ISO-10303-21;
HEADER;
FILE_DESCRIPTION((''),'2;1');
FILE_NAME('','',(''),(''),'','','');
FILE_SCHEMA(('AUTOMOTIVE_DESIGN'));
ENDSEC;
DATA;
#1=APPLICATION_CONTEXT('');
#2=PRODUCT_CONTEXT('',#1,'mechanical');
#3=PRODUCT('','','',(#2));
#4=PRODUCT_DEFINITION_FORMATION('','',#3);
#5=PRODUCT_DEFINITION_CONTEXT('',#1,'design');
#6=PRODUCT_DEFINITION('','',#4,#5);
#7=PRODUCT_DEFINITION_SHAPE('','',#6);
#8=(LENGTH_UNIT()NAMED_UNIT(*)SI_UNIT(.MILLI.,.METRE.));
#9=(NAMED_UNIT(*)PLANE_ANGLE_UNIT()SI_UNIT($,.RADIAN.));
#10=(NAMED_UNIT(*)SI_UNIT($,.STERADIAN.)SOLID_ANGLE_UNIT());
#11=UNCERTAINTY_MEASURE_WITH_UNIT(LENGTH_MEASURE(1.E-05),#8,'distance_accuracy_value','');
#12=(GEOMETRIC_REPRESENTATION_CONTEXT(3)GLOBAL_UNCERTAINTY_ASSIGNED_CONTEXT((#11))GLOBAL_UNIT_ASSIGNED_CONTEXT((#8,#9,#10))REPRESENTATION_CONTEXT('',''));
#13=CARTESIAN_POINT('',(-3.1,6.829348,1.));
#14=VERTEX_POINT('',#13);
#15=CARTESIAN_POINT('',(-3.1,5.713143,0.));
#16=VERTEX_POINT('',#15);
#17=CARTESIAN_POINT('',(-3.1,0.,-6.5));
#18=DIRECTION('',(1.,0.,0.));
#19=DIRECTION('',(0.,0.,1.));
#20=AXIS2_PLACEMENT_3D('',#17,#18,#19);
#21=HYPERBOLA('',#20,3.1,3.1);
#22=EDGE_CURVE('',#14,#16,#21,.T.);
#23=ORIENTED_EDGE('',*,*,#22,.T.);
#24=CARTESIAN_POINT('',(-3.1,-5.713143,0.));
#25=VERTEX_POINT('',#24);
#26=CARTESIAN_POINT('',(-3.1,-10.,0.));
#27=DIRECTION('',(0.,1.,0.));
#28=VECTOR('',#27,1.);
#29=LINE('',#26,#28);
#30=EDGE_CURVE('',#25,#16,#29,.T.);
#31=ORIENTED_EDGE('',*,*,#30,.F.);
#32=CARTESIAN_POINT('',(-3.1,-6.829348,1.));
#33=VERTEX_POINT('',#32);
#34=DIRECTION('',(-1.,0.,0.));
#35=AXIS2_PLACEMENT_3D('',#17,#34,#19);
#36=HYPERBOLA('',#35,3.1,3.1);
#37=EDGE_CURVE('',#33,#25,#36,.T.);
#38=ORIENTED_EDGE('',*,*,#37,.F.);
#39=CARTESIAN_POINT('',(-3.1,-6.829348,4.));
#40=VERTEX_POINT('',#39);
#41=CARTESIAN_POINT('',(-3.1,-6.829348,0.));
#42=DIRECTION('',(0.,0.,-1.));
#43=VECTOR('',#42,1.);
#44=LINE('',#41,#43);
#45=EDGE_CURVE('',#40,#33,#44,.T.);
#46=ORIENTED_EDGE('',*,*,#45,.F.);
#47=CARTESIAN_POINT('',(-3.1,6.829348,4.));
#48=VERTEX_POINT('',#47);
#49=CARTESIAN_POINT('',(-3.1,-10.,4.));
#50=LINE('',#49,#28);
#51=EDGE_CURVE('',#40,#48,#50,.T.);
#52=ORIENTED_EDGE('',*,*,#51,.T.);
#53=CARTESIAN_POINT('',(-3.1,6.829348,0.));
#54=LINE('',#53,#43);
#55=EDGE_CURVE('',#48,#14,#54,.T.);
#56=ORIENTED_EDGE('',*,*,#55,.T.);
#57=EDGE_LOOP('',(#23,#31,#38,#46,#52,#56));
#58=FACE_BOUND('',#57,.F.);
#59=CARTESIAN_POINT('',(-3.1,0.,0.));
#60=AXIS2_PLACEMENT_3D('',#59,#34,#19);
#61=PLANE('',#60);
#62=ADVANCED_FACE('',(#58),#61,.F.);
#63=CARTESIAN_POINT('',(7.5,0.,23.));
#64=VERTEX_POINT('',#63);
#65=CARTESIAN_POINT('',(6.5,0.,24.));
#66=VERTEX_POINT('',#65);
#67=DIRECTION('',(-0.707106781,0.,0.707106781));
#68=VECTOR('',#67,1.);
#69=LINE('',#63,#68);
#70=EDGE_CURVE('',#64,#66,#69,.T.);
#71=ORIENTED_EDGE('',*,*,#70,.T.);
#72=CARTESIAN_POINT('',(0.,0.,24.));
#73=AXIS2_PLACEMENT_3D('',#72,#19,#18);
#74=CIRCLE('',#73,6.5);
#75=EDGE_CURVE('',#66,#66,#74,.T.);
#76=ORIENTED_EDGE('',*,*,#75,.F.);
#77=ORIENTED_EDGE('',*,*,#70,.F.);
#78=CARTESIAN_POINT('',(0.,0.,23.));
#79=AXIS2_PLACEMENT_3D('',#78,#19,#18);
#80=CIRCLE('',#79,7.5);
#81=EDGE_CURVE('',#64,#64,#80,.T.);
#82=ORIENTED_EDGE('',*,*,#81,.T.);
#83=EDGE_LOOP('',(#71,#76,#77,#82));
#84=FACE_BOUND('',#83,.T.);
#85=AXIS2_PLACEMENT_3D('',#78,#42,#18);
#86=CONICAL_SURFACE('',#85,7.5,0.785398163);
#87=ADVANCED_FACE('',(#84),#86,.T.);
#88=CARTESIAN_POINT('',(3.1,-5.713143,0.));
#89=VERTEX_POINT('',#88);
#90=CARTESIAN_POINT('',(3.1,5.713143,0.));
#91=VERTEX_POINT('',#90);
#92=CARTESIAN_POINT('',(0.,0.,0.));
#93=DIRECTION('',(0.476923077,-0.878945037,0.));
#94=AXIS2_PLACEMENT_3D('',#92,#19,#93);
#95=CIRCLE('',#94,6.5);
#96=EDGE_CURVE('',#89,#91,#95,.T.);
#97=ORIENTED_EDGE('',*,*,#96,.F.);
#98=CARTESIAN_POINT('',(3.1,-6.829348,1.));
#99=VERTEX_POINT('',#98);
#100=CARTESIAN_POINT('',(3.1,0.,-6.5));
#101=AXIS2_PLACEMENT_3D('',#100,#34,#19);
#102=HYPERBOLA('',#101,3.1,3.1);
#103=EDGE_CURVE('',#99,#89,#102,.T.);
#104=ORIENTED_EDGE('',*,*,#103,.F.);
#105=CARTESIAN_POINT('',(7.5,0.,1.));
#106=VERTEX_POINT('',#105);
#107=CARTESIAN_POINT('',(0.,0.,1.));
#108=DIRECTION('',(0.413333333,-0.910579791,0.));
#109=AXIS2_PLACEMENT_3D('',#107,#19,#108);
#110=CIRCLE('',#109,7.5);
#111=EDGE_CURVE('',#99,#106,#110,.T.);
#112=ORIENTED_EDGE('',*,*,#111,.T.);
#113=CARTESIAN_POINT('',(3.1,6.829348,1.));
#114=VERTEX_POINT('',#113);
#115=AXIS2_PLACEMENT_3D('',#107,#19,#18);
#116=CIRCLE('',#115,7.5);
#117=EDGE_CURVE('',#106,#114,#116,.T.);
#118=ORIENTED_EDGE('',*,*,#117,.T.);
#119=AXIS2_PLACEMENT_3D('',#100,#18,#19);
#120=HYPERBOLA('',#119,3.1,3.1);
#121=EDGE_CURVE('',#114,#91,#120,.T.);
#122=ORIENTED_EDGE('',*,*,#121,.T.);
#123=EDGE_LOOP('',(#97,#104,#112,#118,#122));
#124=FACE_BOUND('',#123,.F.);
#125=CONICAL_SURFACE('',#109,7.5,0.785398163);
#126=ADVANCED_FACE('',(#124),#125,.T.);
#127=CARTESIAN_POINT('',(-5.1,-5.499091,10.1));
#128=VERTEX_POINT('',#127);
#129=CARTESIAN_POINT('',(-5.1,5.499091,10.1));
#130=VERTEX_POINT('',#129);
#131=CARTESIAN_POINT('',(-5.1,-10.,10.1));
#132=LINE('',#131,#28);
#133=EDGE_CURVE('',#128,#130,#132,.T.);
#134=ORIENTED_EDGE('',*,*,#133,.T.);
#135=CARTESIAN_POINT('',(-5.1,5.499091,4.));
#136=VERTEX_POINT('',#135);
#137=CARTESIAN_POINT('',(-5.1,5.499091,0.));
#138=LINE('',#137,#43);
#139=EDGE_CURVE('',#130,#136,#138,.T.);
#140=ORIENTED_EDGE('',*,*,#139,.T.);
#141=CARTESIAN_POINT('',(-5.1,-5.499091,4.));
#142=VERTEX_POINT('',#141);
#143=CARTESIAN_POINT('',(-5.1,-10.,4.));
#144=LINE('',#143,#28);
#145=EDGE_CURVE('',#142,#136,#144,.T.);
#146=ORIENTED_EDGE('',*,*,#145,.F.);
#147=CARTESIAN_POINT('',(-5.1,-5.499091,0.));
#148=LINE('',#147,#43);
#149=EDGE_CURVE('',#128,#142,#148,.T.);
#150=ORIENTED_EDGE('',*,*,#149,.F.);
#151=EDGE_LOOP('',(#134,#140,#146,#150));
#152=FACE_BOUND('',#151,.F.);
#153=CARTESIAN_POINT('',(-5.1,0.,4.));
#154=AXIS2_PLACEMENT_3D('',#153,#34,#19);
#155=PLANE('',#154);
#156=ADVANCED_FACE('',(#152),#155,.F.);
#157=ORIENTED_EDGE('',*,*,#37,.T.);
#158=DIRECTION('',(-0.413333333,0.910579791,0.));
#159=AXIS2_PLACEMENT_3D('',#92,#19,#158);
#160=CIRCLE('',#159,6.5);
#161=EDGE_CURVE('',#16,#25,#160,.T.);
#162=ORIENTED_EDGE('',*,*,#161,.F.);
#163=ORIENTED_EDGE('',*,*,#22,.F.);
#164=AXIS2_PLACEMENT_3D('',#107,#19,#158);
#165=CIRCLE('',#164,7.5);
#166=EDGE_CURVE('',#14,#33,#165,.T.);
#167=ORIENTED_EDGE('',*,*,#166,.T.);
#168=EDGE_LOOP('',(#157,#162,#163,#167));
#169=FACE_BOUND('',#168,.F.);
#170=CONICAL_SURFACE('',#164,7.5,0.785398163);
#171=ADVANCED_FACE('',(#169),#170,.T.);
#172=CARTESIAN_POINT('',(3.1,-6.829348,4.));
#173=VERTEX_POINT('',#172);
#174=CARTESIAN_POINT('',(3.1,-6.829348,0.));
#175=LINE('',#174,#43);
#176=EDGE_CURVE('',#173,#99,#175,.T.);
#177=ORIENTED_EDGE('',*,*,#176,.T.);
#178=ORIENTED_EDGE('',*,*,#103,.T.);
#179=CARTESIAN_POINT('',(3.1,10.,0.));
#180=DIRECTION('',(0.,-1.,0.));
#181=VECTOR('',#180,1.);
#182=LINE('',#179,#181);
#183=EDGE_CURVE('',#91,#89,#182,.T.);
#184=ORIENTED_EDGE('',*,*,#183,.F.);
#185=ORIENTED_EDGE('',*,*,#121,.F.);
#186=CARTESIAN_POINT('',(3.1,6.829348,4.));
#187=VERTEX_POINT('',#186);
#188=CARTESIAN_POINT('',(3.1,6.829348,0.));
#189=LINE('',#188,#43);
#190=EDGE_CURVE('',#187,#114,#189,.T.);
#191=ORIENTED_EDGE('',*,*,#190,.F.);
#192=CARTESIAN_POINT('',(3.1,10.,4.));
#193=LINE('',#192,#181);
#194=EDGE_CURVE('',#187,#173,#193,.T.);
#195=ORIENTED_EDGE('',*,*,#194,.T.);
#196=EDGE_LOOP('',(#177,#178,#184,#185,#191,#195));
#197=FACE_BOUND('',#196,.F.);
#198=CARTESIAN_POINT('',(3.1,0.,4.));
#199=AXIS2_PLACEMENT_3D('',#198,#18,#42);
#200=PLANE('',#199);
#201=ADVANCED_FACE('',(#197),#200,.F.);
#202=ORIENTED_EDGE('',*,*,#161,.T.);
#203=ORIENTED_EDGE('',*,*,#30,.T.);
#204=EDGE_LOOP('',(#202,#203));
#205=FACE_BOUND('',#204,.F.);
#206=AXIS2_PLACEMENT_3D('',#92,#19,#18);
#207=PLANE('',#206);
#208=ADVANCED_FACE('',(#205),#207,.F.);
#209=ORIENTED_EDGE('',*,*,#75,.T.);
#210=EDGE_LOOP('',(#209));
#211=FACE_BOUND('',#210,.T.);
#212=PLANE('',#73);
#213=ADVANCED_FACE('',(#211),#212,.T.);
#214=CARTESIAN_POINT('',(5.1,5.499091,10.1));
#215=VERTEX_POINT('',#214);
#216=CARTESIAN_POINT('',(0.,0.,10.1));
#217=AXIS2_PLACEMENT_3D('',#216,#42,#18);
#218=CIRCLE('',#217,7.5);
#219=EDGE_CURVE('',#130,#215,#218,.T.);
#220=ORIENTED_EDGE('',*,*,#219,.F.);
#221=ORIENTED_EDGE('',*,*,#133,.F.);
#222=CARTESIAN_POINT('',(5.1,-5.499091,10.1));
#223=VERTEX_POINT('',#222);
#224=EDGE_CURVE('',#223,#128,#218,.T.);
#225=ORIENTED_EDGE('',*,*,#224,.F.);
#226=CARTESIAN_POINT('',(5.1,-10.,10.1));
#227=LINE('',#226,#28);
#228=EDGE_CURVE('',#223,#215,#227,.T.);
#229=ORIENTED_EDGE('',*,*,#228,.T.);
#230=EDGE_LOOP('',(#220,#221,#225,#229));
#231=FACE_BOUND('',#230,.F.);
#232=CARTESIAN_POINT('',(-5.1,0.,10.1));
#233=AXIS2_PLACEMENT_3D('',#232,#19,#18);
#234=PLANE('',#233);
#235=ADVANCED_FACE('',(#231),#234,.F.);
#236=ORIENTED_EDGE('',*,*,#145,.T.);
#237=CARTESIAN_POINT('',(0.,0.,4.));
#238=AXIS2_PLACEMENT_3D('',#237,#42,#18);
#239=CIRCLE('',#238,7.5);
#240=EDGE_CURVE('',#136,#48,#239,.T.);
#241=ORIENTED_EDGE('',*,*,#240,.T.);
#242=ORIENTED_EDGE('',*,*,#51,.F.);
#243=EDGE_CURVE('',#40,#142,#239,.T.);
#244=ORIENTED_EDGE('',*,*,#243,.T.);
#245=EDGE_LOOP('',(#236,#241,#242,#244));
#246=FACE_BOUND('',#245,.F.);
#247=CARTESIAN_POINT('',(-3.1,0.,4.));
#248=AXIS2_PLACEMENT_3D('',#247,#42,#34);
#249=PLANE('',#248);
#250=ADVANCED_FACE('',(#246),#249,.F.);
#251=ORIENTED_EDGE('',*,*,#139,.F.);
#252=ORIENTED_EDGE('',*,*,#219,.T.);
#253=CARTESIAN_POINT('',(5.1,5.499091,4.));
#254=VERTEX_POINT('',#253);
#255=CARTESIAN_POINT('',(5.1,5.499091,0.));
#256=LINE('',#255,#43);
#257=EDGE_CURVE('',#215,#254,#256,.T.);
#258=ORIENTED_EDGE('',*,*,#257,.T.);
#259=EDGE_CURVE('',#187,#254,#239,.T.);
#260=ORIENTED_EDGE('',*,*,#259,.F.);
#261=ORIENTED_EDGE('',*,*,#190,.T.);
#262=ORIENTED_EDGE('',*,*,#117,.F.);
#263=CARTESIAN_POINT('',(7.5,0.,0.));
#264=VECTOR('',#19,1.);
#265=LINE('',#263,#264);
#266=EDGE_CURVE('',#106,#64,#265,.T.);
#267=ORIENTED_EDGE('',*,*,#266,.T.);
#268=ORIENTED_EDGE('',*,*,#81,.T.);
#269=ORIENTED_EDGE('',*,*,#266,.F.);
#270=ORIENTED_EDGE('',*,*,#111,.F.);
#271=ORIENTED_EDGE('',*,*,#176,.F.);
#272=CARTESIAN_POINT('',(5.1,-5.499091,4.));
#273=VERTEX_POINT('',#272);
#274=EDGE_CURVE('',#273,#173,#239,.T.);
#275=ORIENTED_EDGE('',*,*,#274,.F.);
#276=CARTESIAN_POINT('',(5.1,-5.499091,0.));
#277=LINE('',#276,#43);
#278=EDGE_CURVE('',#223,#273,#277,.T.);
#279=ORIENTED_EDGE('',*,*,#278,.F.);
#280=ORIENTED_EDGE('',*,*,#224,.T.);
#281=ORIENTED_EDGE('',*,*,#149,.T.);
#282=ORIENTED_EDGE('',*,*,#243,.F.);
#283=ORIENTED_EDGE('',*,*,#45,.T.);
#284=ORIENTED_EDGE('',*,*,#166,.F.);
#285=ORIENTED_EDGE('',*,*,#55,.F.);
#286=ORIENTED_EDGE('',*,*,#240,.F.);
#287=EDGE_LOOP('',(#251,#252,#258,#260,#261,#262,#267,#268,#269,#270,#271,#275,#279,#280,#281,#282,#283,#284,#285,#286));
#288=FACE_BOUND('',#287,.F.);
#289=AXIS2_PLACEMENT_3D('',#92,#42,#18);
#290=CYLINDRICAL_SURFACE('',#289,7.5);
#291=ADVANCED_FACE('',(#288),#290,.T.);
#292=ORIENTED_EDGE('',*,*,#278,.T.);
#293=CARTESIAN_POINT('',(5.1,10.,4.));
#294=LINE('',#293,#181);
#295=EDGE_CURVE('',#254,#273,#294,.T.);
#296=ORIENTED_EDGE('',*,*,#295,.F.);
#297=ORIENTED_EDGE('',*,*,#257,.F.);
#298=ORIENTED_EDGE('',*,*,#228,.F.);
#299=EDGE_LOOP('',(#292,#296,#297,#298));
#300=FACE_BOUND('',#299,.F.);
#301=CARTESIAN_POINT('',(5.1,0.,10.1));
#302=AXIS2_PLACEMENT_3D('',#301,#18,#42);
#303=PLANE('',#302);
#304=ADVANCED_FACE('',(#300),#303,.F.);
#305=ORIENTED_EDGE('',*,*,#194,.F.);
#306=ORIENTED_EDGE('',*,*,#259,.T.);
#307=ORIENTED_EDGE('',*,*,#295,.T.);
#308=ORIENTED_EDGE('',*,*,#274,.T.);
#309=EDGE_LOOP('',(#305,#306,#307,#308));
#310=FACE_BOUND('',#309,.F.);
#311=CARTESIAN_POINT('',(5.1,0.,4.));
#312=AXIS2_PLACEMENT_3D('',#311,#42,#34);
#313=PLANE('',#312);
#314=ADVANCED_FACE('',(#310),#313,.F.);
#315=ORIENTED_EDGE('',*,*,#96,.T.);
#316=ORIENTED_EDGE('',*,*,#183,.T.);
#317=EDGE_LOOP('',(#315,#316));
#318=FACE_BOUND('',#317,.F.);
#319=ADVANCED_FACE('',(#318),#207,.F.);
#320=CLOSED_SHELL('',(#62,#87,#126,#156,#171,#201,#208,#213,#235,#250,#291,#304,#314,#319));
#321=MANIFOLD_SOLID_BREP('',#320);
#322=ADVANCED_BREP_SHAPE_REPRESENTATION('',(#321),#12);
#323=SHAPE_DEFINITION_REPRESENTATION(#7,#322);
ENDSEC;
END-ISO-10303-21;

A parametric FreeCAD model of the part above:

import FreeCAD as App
import Part
import Sketcher
Q = App.Units.Quantity


def edges_at(feature, points):
    """Names of the edges that pass closest to the given points."""
    edges = feature.Shape.Edges
    near = lambda p: min(range(len(edges)), key=lambda i: edges[i].distToShape(Part.Vertex(*p))[0])
    return sorted({f"Edge{near(p) + 1}" for p in points})

doc = App.newDocument("Part")
body = doc.addObject("PartDesign::Body", "Body")

sketch1 = body.newObject("Sketcher::SketchObject", "Sketch")
sketch1.AttachmentSupport = (doc.getObject("XY_Plane"), [""])
sketch1.MapMode = "FlatFace"
sketch1.addGeometry(Part.Circle(App.Vector(0, 0, 0), App.Vector(0, 0, 1), 7.5), False)
sketch1.addConstraint(Sketcher.Constraint("Coincident", 0, 3, -1, 1))
sketch1.addConstraint(Sketcher.Constraint("Diameter", 0, Q("15 mm")))
pad1 = body.newObject("PartDesign::Pad", "Pad")
pad1.Profile = sketch1
pad1.Length = 24

sketch2 = body.newObject("Sketcher::SketchObject", "Sketch001")
sketch2.AttachmentSupport = (doc.getObject("XZ_Plane"), [""])
sketch2.MapMode = "FlatFace"
sketch2.addGeometry(Part.LineSegment(App.Vector(3.1, 0, 0), App.Vector(-3.1, 0, 0)), False)
sketch2.addGeometry(Part.LineSegment(App.Vector(-3.1, 0, 0), App.Vector(-3.1, 4, 0)), False)
sketch2.addGeometry(Part.LineSegment(App.Vector(-3.1, 4, 0), App.Vector(-5.1, 4, 0)), False)
sketch2.addGeometry(Part.LineSegment(App.Vector(-5.1, 4, 0), App.Vector(-5.1, 10.1, 0)), False)
sketch2.addGeometry(Part.LineSegment(App.Vector(-5.1, 10.1, 0), App.Vector(5.1, 10.1, 0)), False)
sketch2.addGeometry(Part.LineSegment(App.Vector(5.1, 10.1, 0), App.Vector(5.1, 4, 0)), False)
sketch2.addGeometry(Part.LineSegment(App.Vector(5.1, 4, 0), App.Vector(3.1, 4, 0)), False)
sketch2.addGeometry(Part.LineSegment(App.Vector(3.1, 4, 0), App.Vector(3.1, 0, 0)), False)
sketch2.addConstraint(Sketcher.Constraint("Coincident", 0, 2, 1, 1))
sketch2.addConstraint(Sketcher.Constraint("Coincident", 1, 2, 2, 1))
sketch2.addConstraint(Sketcher.Constraint("Coincident", 2, 2, 3, 1))
sketch2.addConstraint(Sketcher.Constraint("Coincident", 3, 2, 4, 1))
sketch2.addConstraint(Sketcher.Constraint("Coincident", 4, 2, 5, 1))
sketch2.addConstraint(Sketcher.Constraint("Coincident", 5, 2, 6, 1))
sketch2.addConstraint(Sketcher.Constraint("Coincident", 6, 2, 7, 1))
sketch2.addConstraint(Sketcher.Constraint("Coincident", 7, 2, 0, 1))
sketch2.addConstraint(Sketcher.Constraint("Horizontal", 0))
sketch2.addConstraint(Sketcher.Constraint("Vertical", 1))
sketch2.addConstraint(Sketcher.Constraint("Horizontal", 2))
sketch2.addConstraint(Sketcher.Constraint("Vertical", 3))
sketch2.addConstraint(Sketcher.Constraint("Horizontal", 4))
sketch2.addConstraint(Sketcher.Constraint("Vertical", 5))
sketch2.addConstraint(Sketcher.Constraint("Horizontal", 6))
sketch2.addConstraint(Sketcher.Constraint("Vertical", 7))
sketch2.addConstraint(Sketcher.Constraint("Symmetric", 0, 2, 7, 2, -1, 1))
sketch2.addConstraint(Sketcher.Constraint("Symmetric", 2, 2, 5, 2, -2))
sketch2.addConstraint(Sketcher.Constraint("DistanceX", 2, 2, 2, 1, Q("2 mm")))
sketch2.addConstraint(Sketcher.Constraint("DistanceY", 1, 1, 1, 2, Q("4 mm")))
sketch2.addConstraint(Sketcher.Constraint("DistanceX", 0, 2, 0, 1, Q("6.2 mm")))
sketch2.addConstraint(Sketcher.Constraint("DistanceY", 3, 1, 3, 2, Q("6.1 mm")))
pocket1 = body.newObject("PartDesign::Pocket", "Pocket")
pocket1.Profile = sketch2
pocket1.Length = 20
pocket1.Midplane = True
doc.recompute()

chamfer = body.newObject("PartDesign::Chamfer", "Chamfer")
chamfer.Base = (pocket1, edges_at(pocket1, [(-7.5, 0, 24)]))
chamfer.Size = 1
doc.recompute()

chamfer2 = body.newObject("PartDesign::Chamfer", "Chamfer001")
chamfer2.Base = (chamfer, edges_at(chamfer, [(-7.5, 0, 0), (6.305, -4.062, 0)]))
chamfer2.Size = 1

doc.recompute()
